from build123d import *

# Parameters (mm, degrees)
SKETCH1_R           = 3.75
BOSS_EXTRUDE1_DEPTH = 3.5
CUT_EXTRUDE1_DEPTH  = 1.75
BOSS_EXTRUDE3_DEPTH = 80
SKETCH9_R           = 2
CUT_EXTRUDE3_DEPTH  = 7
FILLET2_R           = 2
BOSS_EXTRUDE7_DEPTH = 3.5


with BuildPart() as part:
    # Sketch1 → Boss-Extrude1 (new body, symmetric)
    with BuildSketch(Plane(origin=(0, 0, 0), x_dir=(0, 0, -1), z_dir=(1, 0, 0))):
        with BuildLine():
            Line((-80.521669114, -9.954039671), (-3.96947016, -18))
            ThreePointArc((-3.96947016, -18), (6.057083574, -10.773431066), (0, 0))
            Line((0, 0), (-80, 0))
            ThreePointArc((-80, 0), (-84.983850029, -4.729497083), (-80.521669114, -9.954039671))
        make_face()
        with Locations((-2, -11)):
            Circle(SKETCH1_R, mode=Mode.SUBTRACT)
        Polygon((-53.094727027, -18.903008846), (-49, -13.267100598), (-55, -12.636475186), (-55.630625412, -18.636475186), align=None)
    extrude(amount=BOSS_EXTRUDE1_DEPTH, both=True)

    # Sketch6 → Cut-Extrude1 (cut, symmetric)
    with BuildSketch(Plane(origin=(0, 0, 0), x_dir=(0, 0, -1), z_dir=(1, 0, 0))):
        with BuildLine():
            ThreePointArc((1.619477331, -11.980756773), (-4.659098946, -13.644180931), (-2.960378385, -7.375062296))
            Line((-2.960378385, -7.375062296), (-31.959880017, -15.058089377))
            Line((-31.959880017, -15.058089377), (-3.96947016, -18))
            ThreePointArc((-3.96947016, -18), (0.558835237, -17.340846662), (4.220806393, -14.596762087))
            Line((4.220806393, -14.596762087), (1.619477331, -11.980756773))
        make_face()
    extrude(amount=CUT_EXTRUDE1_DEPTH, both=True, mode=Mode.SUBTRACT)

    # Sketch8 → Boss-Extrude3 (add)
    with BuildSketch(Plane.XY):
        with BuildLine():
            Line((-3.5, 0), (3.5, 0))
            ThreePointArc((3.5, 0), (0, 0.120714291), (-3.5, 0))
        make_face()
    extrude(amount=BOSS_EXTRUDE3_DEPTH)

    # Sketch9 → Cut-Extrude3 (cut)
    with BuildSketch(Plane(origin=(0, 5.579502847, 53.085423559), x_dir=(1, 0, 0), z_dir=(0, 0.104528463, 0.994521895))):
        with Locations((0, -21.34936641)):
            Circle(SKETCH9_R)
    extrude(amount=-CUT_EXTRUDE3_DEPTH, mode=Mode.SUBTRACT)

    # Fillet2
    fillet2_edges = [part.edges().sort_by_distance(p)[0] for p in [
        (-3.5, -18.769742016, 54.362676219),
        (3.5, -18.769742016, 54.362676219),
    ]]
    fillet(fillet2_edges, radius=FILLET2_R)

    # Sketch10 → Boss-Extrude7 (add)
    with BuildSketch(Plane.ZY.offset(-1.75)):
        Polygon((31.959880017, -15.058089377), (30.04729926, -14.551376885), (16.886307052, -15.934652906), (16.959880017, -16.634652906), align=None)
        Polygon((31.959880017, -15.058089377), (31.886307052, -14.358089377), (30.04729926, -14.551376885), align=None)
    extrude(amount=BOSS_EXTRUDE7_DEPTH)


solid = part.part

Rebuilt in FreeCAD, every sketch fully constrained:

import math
import FreeCAD as App
import Part
import Sketcher
from FreeCAD import Vector
Q = App.Units.Quantity


def edges_at(feature, points):
    """Names of the edges that pass closest to the given points."""
    edges = feature.Shape.Edges
    near = lambda p: min(range(len(edges)), key=lambda i: edges[i].distToShape(Part.Vertex(*p))[0])
    return sorted({f"Edge{near(p) + 1}" for p in points})


def add_polygon(sketch, points):
    """Adds a closed chain of lines whose ends are joined by coincident constraints."""
    first, n = sketch.GeometryCount, len(points)
    for a, b in zip(points, points[1:] + points[:1]):
        sketch.addGeometry(Part.LineSegment(App.Vector(*a, 0), App.Vector(*b, 0)), False)
    for i in range(n):
        sketch.addConstraint(Sketcher.Constraint("Coincident", first + i, 2, first + (i + 1) % n, 1))

doc = App.newDocument("Part")
body = doc.addObject("PartDesign::Body", "Body")

# Sketch on YZ plane
sketch1 = body.newObject("Sketcher::SketchObject", "Sketch")
sketch1.AttachmentSupport = (doc.getObject("YZ_Plane"), [""])
sketch1.MapMode = "FlatFace"
sketch1.addGeometry([
    Part.LineSegment(Vector(-10, 80.5, 0), Vector(-12.6, 55, 0)),  # 0
    Part.LineSegment(Vector(-12.6, 55, 0), Vector(-18.6, 55.6, 0)),  # 1
    Part.LineSegment(Vector(-18.6, 55.6, 0), Vector(-18.9, 53.1, 0)),  # 2
    Part.LineSegment(Vector(-18.9, 53.1, 0), Vector(-13.3, 49, 0)),  # 3
    Part.LineSegment(Vector(-13.3, 49, 0), Vector(-18, 4, 0)),  # 4
    Part.ArcOfCircle(Part.Circle(Vector(-8.8, 3, 0), Vector(0, 0, 1), 9.3), math.radians(174), math.radians(341)),  # 5
    Part.LineSegment(Vector(0, 0, 0), Vector(0, 80, 0)),  # 6
    Part.ArcOfCircle(Part.Circle(Vector(-5, 80, 0), Vector(0, 0, 1), 5), math.radians(0), math.radians(174)),  # 7
    Part.Circle(Vector(-11, 2, 0), Vector(0, 0, 1), 3.8),  # 8
], False)
sketch1.addConstraint([
    Sketcher.Constraint("Coincident", 0, 2, 1, 1),
    Sketcher.Constraint("Coincident", 1, 2, 2, 1),
    Sketcher.Constraint("Coincident", 2, 2, 3, 1),
    Sketcher.Constraint("Coincident", 3, 2, 4, 1),
    Sketcher.Constraint("Tangent", 4, 2, 5, 1),
    Sketcher.Constraint("Coincident", 5, 2, 6, 1),
    Sketcher.Constraint("Tangent", 6, 2, 7, 1),
    Sketcher.Constraint("Tangent", 7, 2, 0, 1),
    Sketcher.Constraint("Vertical", 6),
    Sketcher.Constraint("Coincident", 5, 2, -1, 1),
    Sketcher.Constraint("Perpendicular", 0, 1),
    Sketcher.Constraint("Perpendicular", 1, 2),
    Sketcher.Constraint("Parallel", 2, 4),
    Sketcher.Constraint("Diameter", 8, Q("7.5 mm")),
    Sketcher.Constraint("DistanceY", 6, 1, 6, 2, Q("80 mm")),
    Sketcher.Constraint("Angle", 0, Q("-96 deg")),
    Sketcher.Constraint("Angle", 3, Q("-36 deg")),
    Sketcher.Constraint("DistanceY", -1, 1, 5, 3, Q("3 mm")),
    Sketcher.Constraint("DistanceX", 8, 3, -1, 1, Q("11 mm")),
    Sketcher.Constraint("DistanceY", -1, 1, 8, 3, Q("2 mm")),
    Sketcher.Constraint("DistanceY", -1, 1, 0, 2, Q("55 mm")),
    Sketcher.Constraint("DistanceY", -1, 1, 3, 2, Q("49 mm")),
    Sketcher.Constraint("DistanceX", 4, 2, -1, 1, Q("18 mm")),
    Sketcher.Constraint("DistanceX", 1, 2, 0, 2, Q("6 mm")),
    Sketcher.Constraint("Radius", 7, Q("4.99069 mm")),
])
pad1 = body.newObject("PartDesign::Pad", "Pad")
pad1.Profile = sketch1
pad1.Length = 7
pad1.Midplane = True

# Sketch on YZ plane
sketch2 = body.newObject("Sketcher::SketchObject", "Sketch001")
sketch2.AttachmentSupport = (doc.getObject("YZ_Plane"), [""])
sketch2.MapMode = "FlatFace"
sketch2.addGeometry([
    Part.ArcOfCircle(Part.Circle(Vector(-11, 2, 0), Vector(0, 0, 1), 3.8), math.radians(15), math.radians(255)),  # 0
    Part.LineSegment(Vector(-7.4, 3, 0), Vector(-15.1, 32, 0)),  # 1
    Part.LineSegment(Vector(-15.1, 32, 0), Vector(-18, 4, 0)),  # 2
    Part.ArcOfCircle(Part.Circle(Vector(-8.8, 3, 0), Vector(0, 0, 1), 9.3), math.radians(174), math.radians(231)),  # 3
    Part.LineSegment(Vector(-14.6, -4.2, 0), Vector(-12, -1.6, 0)),  # 4
], False)
sketch2.addConstraint([
    Sketcher.Constraint("Tangent", 0, 1, 1, 1),
    Sketcher.Constraint("Coincident", 1, 2, 2, 1),
    Sketcher.Constraint("Tangent", 2, 2, 3, 1),
    Sketcher.Constraint("Coincident", 3, 2, 4, 1),
    Sketcher.Constraint("Coincident", 4, 2, 0, 2),
    Sketcher.Constraint("Angle", 2, Q("-96 deg")),
    Sketcher.Constraint("Radius", 0, Q("3.75 mm")),
    Sketcher.Constraint("Distance", 1, Q("30 mm")),
    Sketcher.Constraint("DistanceX", 0, 3, -1, 1, Q("11 mm")),
    Sketcher.Constraint("DistanceY", -1, 1, 0, 3, Q("2 mm")),
    Sketcher.Constraint("DistanceY", -1, 1, 3, 3, Q("3 mm")),
    Sketcher.Constraint("DistanceX", 2, 2, -1, 1, Q("18 mm")),
    Sketcher.Constraint("Radius", 3, Q("9.2747 mm")),
    Sketcher.Constraint("DistanceX", 3, 2, 0, 1, Q("7.2217 mm")),
    Sketcher.Constraint("DistanceY", 3, 2, 4, 2, Q("2.601329 mm")),
])
pocket1 = body.newObject("PartDesign::Pocket", "Pocket")
pocket1.Profile = sketch2
pocket1.Length = 3.5
pocket1.Midplane = True

# Sketch on XY plane
sketch3 = body.newObject("Sketcher::SketchObject", "Sketch002")
sketch3.AttachmentSupport = (doc.getObject("XY_Plane"), [""])
sketch3.MapMode = "FlatFace"
sketch3.addGeometry([
    Part.LineSegment(Vector(-4, 0, 0), Vector(4, 0, 0)),
    Part.ArcOfCircle(Part.Circle(Vector(0, -51, 0), Vector(0, 0, 1), 51), math.radians(86.05), math.radians(93.95)),
], False)
sketch3.addConstraint([
    Sketcher.Constraint("Coincident", 0, 1, 1, 2),
    Sketcher.Constraint("Coincident", 1, 1, 0, 2),
    Sketcher.Constraint("Horizontal", 0),
    Sketcher.Constraint("Symmetric", 0, 1, 1, 1, -1, 1),
    Sketcher.Constraint("Radius", 1, Q("50.8 mm")),
    Sketcher.Constraint("DistanceX", 0, 1, 0, 2, Q("7 mm")),
])
pad2 = body.newObject("PartDesign::Pad", "Pad001")
pad2.Profile = sketch3
pad2.Length = 80

# Sketch on an angled plane
sketch4 = body.newObject("Sketcher::SketchObject", "Sketch003")
sketch4.Placement = App.Placement(Vector(0, 5.579503, 53.085424), App.Rotation(Vector(1, 0, 0), Vector(0, 0.994521895, -0.104528463), Vector(0, 0.104528463, 0.994521895), "ZXY"))
sketch4.addGeometry(Part.Circle(Vector(0, -21.3, 0), Vector(0, 0, 1), 2), False)
sketch4.addConstraint([
    Sketcher.Constraint("PointOnObject", 0, 3, -2),
    Sketcher.Constraint("Diameter", 0, Q("4 mm")),
    Sketcher.Constraint("DistanceY", 0, 3, -1, 1, Q("21.349366 mm")),
])
pocket2 = body.newObject("PartDesign::Pocket", "Pocket001")
pocket2.Profile = sketch4
pocket2.Length = 7
doc.recompute()

fillet = body.newObject("PartDesign::Fillet", "Fillet")
fillet.Base = (pocket2, edges_at(pocket2, [(-3.5, -18.77, 54.363), (3.5, -18.77, 54.363)]))
fillet.Radius = 2

# Sketch on YZ plane
sketch5 = body.newObject("Sketcher::SketchObject", "Sketch004")
sketch5.AttachmentSupport = (doc.getObject("YZ_Plane"), [""])
sketch5.MapMode = "FlatFace"
sketch5.AttachmentOffset = App.Placement(Vector(0, 0, 1.75), App.Rotation())
add_polygon(sketch5, [(-14.6, 30), (-15.9, 16.9), (-16.6, 17), (-15.1, 32), (-14.4, 31.9)])  # lines 0-4
sketch5.addConstraint([
    Sketcher.Constraint("Perpendicular", 0, 1),
    Sketcher.Constraint("Perpendicular", 1, 2),
    Sketcher.Constraint("Perpendicular", 2, 3),
    Sketcher.Constraint("Perpendicular", 3, 4),
    Sketcher.Constraint("Angle", 0, Q("-96 deg")),
    Sketcher.Constraint("DistanceY", 1, 2, 2, 2, Q("15 mm")),
    Sketcher.Constraint("DistanceX", 1, 2, 0, 2, Q("0.7 mm")),
    Sketcher.Constraint("DistanceY", -1, 1, 4, 2, Q("30.047299 mm")),
    Sketcher.Constraint("DistanceY", -1, 1, 1, 2, Q("16.95988 mm")),
    Sketcher.Constraint("DistanceX", 2, 2, -1, 1, Q("15.058089 mm")),
])
pad3 = body.newObject("PartDesign::Pad", "Pad002")
pad3.Profile = sketch5
pad3.Length = 3.5
pad3.Reversed = True

doc.recompute()
